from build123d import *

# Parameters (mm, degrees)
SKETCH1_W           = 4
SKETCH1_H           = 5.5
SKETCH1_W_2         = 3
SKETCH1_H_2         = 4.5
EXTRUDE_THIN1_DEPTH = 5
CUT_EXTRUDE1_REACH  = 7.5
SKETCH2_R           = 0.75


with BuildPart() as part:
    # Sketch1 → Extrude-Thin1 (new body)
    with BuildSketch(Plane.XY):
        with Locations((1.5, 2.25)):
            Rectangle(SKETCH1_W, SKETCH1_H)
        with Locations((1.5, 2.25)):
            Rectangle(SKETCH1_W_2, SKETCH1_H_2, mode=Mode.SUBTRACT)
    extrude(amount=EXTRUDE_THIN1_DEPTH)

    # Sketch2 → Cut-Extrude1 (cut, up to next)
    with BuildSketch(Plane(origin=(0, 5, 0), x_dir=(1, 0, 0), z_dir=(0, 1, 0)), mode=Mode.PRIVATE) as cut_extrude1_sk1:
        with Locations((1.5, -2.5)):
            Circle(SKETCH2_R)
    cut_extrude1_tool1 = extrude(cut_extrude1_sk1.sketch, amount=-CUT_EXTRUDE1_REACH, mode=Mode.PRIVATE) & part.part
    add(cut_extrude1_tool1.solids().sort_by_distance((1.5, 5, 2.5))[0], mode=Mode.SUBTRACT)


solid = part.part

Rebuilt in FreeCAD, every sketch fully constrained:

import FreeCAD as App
import Part
import Sketcher


def add_polygon(sketch, points):
    """Adds a closed chain of lines whose ends are joined by coincident constraints."""
    first, n = sketch.GeometryCount, len(points)
    for a, b in zip(points, points[1:] + points[:1]):
        sketch.addGeometry(Part.LineSegment(App.Vector(*a, 0), App.Vector(*b, 0)), False)
    for i in range(n):
        sketch.addConstraint(Sketcher.Constraint("Coincident", first + i, 2, first + (i + 1) % n, 1))

doc = App.newDocument("Part")
body = doc.addObject("PartDesign::Body", "Body")

# Sketch on XY plane
sketch1 = doc.addObject("Sketcher::SketchObject", "Sketch")
body.addObject(sketch1)
sketch1.AttachmentSupport = (doc.XY_Plane, [""])
sketch1.MapMode = "FlatFace"
add_polygon(sketch1, [(-0.5, 5), (-0.5, -0.5), (3.5, -0.5), (3.5, 5)])  # lines 0-3
add_polygon(sketch1, [(3, 0), (0, 0), (0, 4.5), (3, 4.5)])  # lines 4-7
sketch1.addConstraint(Sketcher.Constraint("Vertical", 0))
sketch1.addConstraint(Sketcher.Constraint("Horizontal", 1))
sketch1.addConstraint(Sketcher.Constraint("Vertical", 2))
sketch1.addConstraint(Sketcher.Constraint("Horizontal", 3))
sketch1.addConstraint(Sketcher.Constraint("Horizontal", 4))
sketch1.addConstraint(Sketcher.Constraint("Vertical", 5))
sketch1.addConstraint(Sketcher.Constraint("Horizontal", 6))
sketch1.addConstraint(Sketcher.Constraint("Vertical", 7))
sketch1.addConstraint(Sketcher.Constraint("Coincident", 4, 2, -1, 1))
sketch1.addConstraint(Sketcher.Constraint("DistanceX", 1, 1, 1, 2, 4.0))
sketch1.addConstraint(Sketcher.Constraint("DistanceX", 4, 2, 4, 1, 3.0))
sketch1.addConstraint(Sketcher.Constraint("DistanceY", 0, 2, 0, 1, 5.5))
sketch1.addConstraint(Sketcher.Constraint("DistanceY", 5, 1, 5, 2, 4.5))
sketch1.addConstraint(Sketcher.Constraint("DistanceY", -1, 1, 2, 2, 5.0))
sketch1.addConstraint(Sketcher.Constraint("DistanceX", 0, 2, -1, 1, 0.5))
pad1 = doc.addObject("PartDesign::Pad", "Pad")
body.addObject(pad1)
pad1.Profile = sketch1
pad1.Length = 5

# Sketch on XZ plane
sketch2 = doc.addObject("Sketcher::SketchObject", "Sketch001")
body.addObject(sketch2)
sketch2.AttachmentSupport = (doc.XZ_Plane, [""])
sketch2.MapMode = "FlatFace"
sketch2.AttachmentOffset = App.Placement(App.Vector(0, 0, -5), App.Rotation())
sketch2.addGeometry(Part.Circle(App.Vector(1.5, 2.5, 0), App.Vector(0, 0, 1), 0.75), False)
sketch2.addConstraint(Sketcher.Constraint("Diameter", 0, 1.5))
sketch2.addConstraint(Sketcher.Constraint("DistanceX", -1, 1, 0, 3, 1.5))
sketch2.addConstraint(Sketcher.Constraint("DistanceY", -1, 1, 0, 3, 2.5))
pocket1 = doc.addObject("PartDesign::Pocket", "Pocket")
body.addObject(pocket1)
pocket1.Profile = sketch2
pocket1.Type = "UpToFirst"
pocket1.Reversed = True

doc.recompute()
